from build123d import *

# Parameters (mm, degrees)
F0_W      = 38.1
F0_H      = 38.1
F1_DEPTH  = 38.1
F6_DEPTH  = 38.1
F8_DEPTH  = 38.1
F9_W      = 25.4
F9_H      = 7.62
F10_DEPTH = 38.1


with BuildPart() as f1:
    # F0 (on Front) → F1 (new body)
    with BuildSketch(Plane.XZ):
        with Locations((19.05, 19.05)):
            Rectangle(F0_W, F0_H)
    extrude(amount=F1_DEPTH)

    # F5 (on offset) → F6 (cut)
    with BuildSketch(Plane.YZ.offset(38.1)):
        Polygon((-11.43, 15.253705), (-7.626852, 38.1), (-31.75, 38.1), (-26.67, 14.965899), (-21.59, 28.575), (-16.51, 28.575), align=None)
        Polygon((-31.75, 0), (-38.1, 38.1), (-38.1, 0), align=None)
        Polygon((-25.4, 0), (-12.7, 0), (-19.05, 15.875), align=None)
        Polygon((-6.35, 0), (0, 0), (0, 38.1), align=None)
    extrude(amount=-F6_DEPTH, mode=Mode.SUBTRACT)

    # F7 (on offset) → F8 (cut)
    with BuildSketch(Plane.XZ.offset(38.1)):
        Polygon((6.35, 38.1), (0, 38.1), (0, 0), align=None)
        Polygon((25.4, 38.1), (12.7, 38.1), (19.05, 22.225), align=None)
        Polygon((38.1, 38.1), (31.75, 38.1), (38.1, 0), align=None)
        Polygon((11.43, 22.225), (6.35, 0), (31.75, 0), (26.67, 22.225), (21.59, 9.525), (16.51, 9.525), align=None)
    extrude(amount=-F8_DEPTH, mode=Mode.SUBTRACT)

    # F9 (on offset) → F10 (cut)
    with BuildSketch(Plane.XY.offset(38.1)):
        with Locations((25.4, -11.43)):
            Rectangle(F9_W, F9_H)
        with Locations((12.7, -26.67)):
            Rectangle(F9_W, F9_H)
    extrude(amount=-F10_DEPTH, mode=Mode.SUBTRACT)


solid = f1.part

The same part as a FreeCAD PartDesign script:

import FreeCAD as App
import Part
import Sketcher
from FreeCAD import Vector
Q = App.Units.Quantity

doc = App.newDocument("Part")
body = doc.addObject("PartDesign::Body", "Body")

# Sketch on XZ plane
sketch1 = doc.addObject("Sketcher::SketchObject", "Sketch")
body.addObject(sketch1)
sketch1.AttachmentSupport = (doc.XZ_Plane, [""])
sketch1.MapMode = "FlatFace"
sketch1.addGeometry(Part.LineSegment(Vector(0, 38, 0), Vector(0, 0, 0)), False)
sketch1.addGeometry(Part.LineSegment(Vector(0, 0, 0), Vector(38, 0, 0)), False)
sketch1.addGeometry(Part.LineSegment(Vector(38, 0, 0), Vector(38, 38, 0)), False)
sketch1.addGeometry(Part.LineSegment(Vector(38, 38, 0), Vector(0, 38, 0)), False)
sketch1.addConstraint(Sketcher.Constraint("Coincident", 0, 2, 1, 1))
sketch1.addConstraint(Sketcher.Constraint("Coincident", 1, 2, 2, 1))
sketch1.addConstraint(Sketcher.Constraint("Coincident", 2, 2, 3, 1))
sketch1.addConstraint(Sketcher.Constraint("Coincident", 3, 2, 0, 1))
sketch1.addConstraint(Sketcher.Constraint("Vertical", 0))
sketch1.addConstraint(Sketcher.Constraint("Horizontal", 1))
sketch1.addConstraint(Sketcher.Constraint("Vertical", 2))
sketch1.addConstraint(Sketcher.Constraint("Horizontal", 3))
sketch1.addConstraint(Sketcher.Constraint("Coincident", 0, 2, -1, 1))
sketch1.addConstraint(Sketcher.Constraint("Equal", 3, 0))
sketch1.addConstraint(Sketcher.Constraint("DistanceX", 1, 1, 1, 2, Q("1.5 in")))
pad1 = doc.addObject("PartDesign::Pad", "Pad")
body.addObject(pad1)
pad1.Profile = sketch1
pad1.Length = Q("1.5 in")

# Sketch on YZ plane
sketch2 = doc.addObject("Sketcher::SketchObject", "Sketch001")
body.addObject(sketch2)
sketch2.AttachmentSupport = (doc.YZ_Plane, [""])
sketch2.MapMode = "FlatFace"
sketch2.AttachmentOffset = App.Placement(Vector(0, 0, 1.5 * 25.4), App.Rotation())
sketch2.addGeometry(Part.LineSegment(Vector(-11, 15, 0), Vector(-8, 38, 0)), False)
sketch2.addGeometry(Part.LineSegment(Vector(-8, 38, 0), Vector(-32, 38, 0)), False)
sketch2.addGeometry(Part.LineSegment(Vector(-32, 38, 0), Vector(-27, 15, 0)), False)
sketch2.addGeometry(Part.LineSegment(Vector(-27, 15, 0), Vector(-22, 29, 0)), False)
sketch2.addGeometry(Part.LineSegment(Vector(-22, 29, 0), Vector(-17, 29, 0)), False)
sketch2.addGeometry(Part.LineSegment(Vector(-17, 29, 0), Vector(-11, 15, 0)), False)
sketch2.addGeometry(Part.LineSegment(Vector(-32, 0, 0), Vector(-38, 38, 0)), False)
sketch2.addGeometry(Part.LineSegment(Vector(-38, 38, 0), Vector(-38, 0, 0)), False)
sketch2.addGeometry(Part.LineSegment(Vector(-38, 0, 0), Vector(-32, 0, 0)), False)
sketch2.addGeometry(Part.LineSegment(Vector(-25, 0, 0), Vector(-13, 0, 0)), False)
sketch2.addGeometry(Part.LineSegment(Vector(-13, 0, 0), Vector(-19, 16, 0)), False)
sketch2.addGeometry(Part.LineSegment(Vector(-19, 16, 0), Vector(-25, 0, 0)), False)
sketch2.addGeometry(Part.LineSegment(Vector(-6, 0, 0), Vector(0, 0, 0)), False)
sketch2.addGeometry(Part.LineSegment(Vector(0, 0, 0), Vector(0, 38, 0)), False)
sketch2.addGeometry(Part.LineSegment(Vector(0, 38, 0), Vector(-6, 0, 0)), False)
sketch2.addConstraint(Sketcher.Constraint("Coincident", 0, 2, 1, 1))
sketch2.addConstraint(Sketcher.Constraint("Coincident", 1, 2, 2, 1))
sketch2.addConstraint(Sketcher.Constraint("Coincident", 2, 2, 3, 1))
sketch2.addConstraint(Sketcher.Constraint("Coincident", 3, 2, 4, 1))
sketch2.addConstraint(Sketcher.Constraint("Coincident", 4, 2, 5, 1))
sketch2.addConstraint(Sketcher.Constraint("Coincident", 5, 2, 0, 1))
sketch2.addConstraint(Sketcher.Constraint("Coincident", 6, 2, 7, 1))
sketch2.addConstraint(Sketcher.Constraint("Coincident", 7, 2, 8, 1))
sketch2.addConstraint(Sketcher.Constraint("Coincident", 8, 2, 6, 1))
sketch2.addConstraint(Sketcher.Constraint("Coincident", 9, 2, 10, 1))
sketch2.addConstraint(Sketcher.Constraint("Coincident", 10, 2, 11, 1))
sketch2.addConstraint(Sketcher.Constraint("Coincident", 11, 2, 9, 1))
sketch2.addConstraint(Sketcher.Constraint("Coincident", 12, 2, 13, 1))
sketch2.addConstraint(Sketcher.Constraint("Coincident", 13, 2, 14, 1))
sketch2.addConstraint(Sketcher.Constraint("Coincident", 14, 2, 12, 1))
sketch2.addConstraint(Sketcher.Constraint("Horizontal", 1))
sketch2.addConstraint(Sketcher.Constraint("Horizontal", 4))
sketch2.addConstraint(Sketcher.Constraint("Vertical", 7))
sketch2.addConstraint(Sketcher.Constraint("Horizontal", 8))
sketch2.addConstraint(Sketcher.Constraint("Horizontal", 9))
sketch2.addConstraint(Sketcher.Constraint("Horizontal", 12))
sketch2.addConstraint(Sketcher.Constraint("Vertical", 13))
sketch2.addConstraint(Sketcher.Constraint("Coincident", 12, 2, -1, 1))
sketch2.addConstraint(Sketcher.Constraint("PointOnObject", 7, 2, -1))
sketch2.addConstraint(Sketcher.Constraint("PointOnObject", 9, 2, -1))
sketch2.addConstraint(Sketcher.Constraint("Horizontal", 1, 2, 6, 2))
sketch2.addConstraint(Sketcher.Constraint("Horizontal", 6, 2, 13, 2))
sketch2.addConstraint(Sketcher.Constraint("Vertical", 1, 2, 8, 2))
sketch2.addConstraint(Sketcher.Constraint("Equal", 8, 12))
sketch2.addConstraint(Sketcher.Constraint("Equal", 10, 11))
sketch2.addConstraint(Sketcher.Constraint("DistanceX", 4, 1, 4, 2, Q("0.2 in")))
sketch2.addConstraint(Sketcher.Constraint("DistanceX", 9, 1, 9, 2, Q("0.5 in")))
sketch2.addConstraint(Sketcher.Constraint("DistanceY", 7, 2, 7, 1, Q("1.5 in")))
sketch2.addConstraint(Sketcher.Constraint("DistanceX", 11, 2, -1, 1, Q("1 in")))
sketch2.addConstraint(Sketcher.Constraint("DistanceX", 7, 2, 9, 2, Q("1 in")))
sketch2.addConstraint(Sketcher.Constraint("DistanceX", 8, 1, 8, 2, Q("0.25 in")))
sketch2.addConstraint(Sketcher.Constraint("DistanceX", 1, 2, 2, 2, Q("0.2 in")))
sketch2.addConstraint(Sketcher.Constraint("DistanceX", 1, 2, 3, 2, Q("0.4 in")))
sketch2.addConstraint(Sketcher.Constraint("DistanceX", 4, 2, 5, 2, Q("0.2 in")))
sketch2.addConstraint(Sketcher.Constraint("DistanceY", 10, 2, 3, 2, Q("0.5 in")))
sketch2.addConstraint(Sketcher.Constraint("DistanceY", -1, 1, 3, 2, Q("1.125 in")))
sketch2.addConstraint(Sketcher.Constraint("DistanceX", 1, 2, 1, 1, Q("24.123148 mm")))
sketch2.addConstraint(Sketcher.Constraint("DistanceY", -1, 1, 2, 2, Q("14.965899 mm")))
sketch2.addConstraint(Sketcher.Constraint("Distance", 0, Q("23.160681 mm")))
pocket1 = doc.addObject("PartDesign::Pocket", "Pocket")
body.addObject(pocket1)
pocket1.Profile = sketch2
pocket1.Length = Q("1.5 in")

# Sketch on XZ plane
sketch3 = doc.addObject("Sketcher::SketchObject", "Sketch002")
body.addObject(sketch3)
sketch3.AttachmentSupport = (doc.XZ_Plane, [""])
sketch3.MapMode = "FlatFace"
sketch3.AttachmentOffset = App.Placement(Vector(0, 0, 1.5 * 25.4), App.Rotation())
sketch3.addGeometry(Part.LineSegment(Vector(6, 38, 0), Vector(0, 38, 0)), False)
sketch3.addGeometry(Part.LineSegment(Vector(0, 38, 0), Vector(0, 0, 0)), False)
sketch3.addGeometry(Part.LineSegment(Vector(0, 0, 0), Vector(6, 38, 0)), False)
sketch3.addGeometry(Part.LineSegment(Vector(25, 38, 0), Vector(13, 38, 0)), False)
sketch3.addGeometry(Part.LineSegment(Vector(13, 38, 0), Vector(19, 22, 0)), False)
sketch3.addGeometry(Part.LineSegment(Vector(19, 22, 0), Vector(25, 38, 0)), False)
sketch3.addGeometry(Part.LineSegment(Vector(38, 38, 0), Vector(32, 38, 0)), False)
sketch3.addGeometry(Part.LineSegment(Vector(32, 38, 0), Vector(38, 0, 0)), False)
sketch3.addGeometry(Part.LineSegment(Vector(38, 0, 0), Vector(38, 38, 0)), False)
sketch3.addGeometry(Part.LineSegment(Vector(11, 22, 0), Vector(6, 0, 0)), False)
sketch3.addGeometry(Part.LineSegment(Vector(6, 0, 0), Vector(32, 0, 0)), False)
sketch3.addGeometry(Part.LineSegment(Vector(32, 0, 0), Vector(27, 22, 0)), False)
sketch3.addGeometry(Part.LineSegment(Vector(27, 22, 0), Vector(22, 10, 0)), False)
sketch3.addGeometry(Part.LineSegment(Vector(22, 10, 0), Vector(17, 10, 0)), False)
sketch3.addGeometry(Part.LineSegment(Vector(17, 10, 0), Vector(11, 22, 0)), False)
sketch3.addConstraint(Sketcher.Constraint("Coincident", 0, 2, 1, 1))
sketch3.addConstraint(Sketcher.Constraint("Coincident", 1, 2, 2, 1))
sketch3.addConstraint(Sketcher.Constraint("Coincident", 2, 2, 0, 1))
sketch3.addConstraint(Sketcher.Constraint("Coincident", 3, 2, 4, 1))
sketch3.addConstraint(Sketcher.Constraint("Coincident", 4, 2, 5, 1))
sketch3.addConstraint(Sketcher.Constraint("Coincident", 5, 2, 3, 1))
sketch3.addConstraint(Sketcher.Constraint("Coincident", 6, 2, 7, 1))
sketch3.addConstraint(Sketcher.Constraint("Coincident", 7, 2, 8, 1))
sketch3.addConstraint(Sketcher.Constraint("Coincident", 8, 2, 6, 1))
sketch3.addConstraint(Sketcher.Constraint("Coincident", 9, 2, 10, 1))
sketch3.addConstraint(Sketcher.Constraint("Coincident", 10, 2, 11, 1))
sketch3.addConstraint(Sketcher.Constraint("Coincident", 11, 2, 12, 1))
sketch3.addConstraint(Sketcher.Constraint("Coincident", 12, 2, 13, 1))
sketch3.addConstraint(Sketcher.Constraint("Coincident", 13, 2, 14, 1))
sketch3.addConstraint(Sketcher.Constraint("Coincident", 14, 2, 9, 1))
sketch3.addConstraint(Sketcher.Constraint("Horizontal", 0))
sketch3.addConstraint(Sketcher.Constraint("Vertical", 1))
sketch3.addConstraint(Sketcher.Constraint("Horizontal", 3))
sketch3.addConstraint(Sketcher.Constraint("Horizontal", 6))
sketch3.addConstraint(Sketcher.Constraint("Vertical", 8))
sketch3.addConstraint(Sketcher.Constraint("Horizontal", 10))
sketch3.addConstraint(Sketcher.Constraint("Horizontal", 13))
sketch3.addConstraint(Sketcher.Constraint("Coincident", 1, 2, -1, 1))
sketch3.addConstraint(Sketcher.Constraint("PointOnObject", 7, 2, -1))
sketch3.addConstraint(Sketcher.Constraint("PointOnObject", 9, 2, -1))
sketch3.addConstraint(Sketcher.Constraint("Parallel", 5, 12))
sketch3.addConstraint(Sketcher.Constraint("Parallel", 4, 14))
sketch3.addConstraint(Sketcher.Constraint("Horizontal", 2, 2, 3, 2))
sketch3.addConstraint(Sketcher.Constraint("Horizontal", 5, 2, 6, 2))
sketch3.addConstraint(Sketcher.Constraint("Horizontal", 4, 2, 11, 2))
sketch3.addConstraint(Sketcher.Constraint("Horizontal", 11, 2, 14, 2))
sketch3.addConstraint(Sketcher.Constraint("Vertical", 2, 2, 9, 2))
sketch3.addConstraint(Sketcher.Constraint("Vertical", 6, 2, 10, 2))
sketch3.addConstraint(Sketcher.Constraint("Equal", 0, 6))
sketch3.addConstraint(Sketcher.Constraint("Equal", 4, 5))
sketch3.addConstraint(Sketcher.Constraint("Equal", 9, 11))
sketch3.addConstraint(Sketcher.Constraint("DistanceX", 10, 1, 10, 2, Q("1 in")))
sketch3.addConstraint(Sketcher.Constraint("DistanceX", 3, 2, 3, 1, Q("0.5 in")))
sketch3.addConstraint(Sketcher.Constraint("DistanceX", 13, 2, 13, 1, Q("0.2 in")))
sketch3.addConstraint(Sketcher.Constraint("DistanceY", 1, 2, 1, 1, Q("1.5 in")))
sketch3.addConstraint(Sketcher.Constraint("DistanceX", -1, 1, 5, 2, Q("1 in")))
sketch3.addConstraint(Sketcher.Constraint("DistanceX", 3, 2, 7, 2, Q("1 in")))
sketch3.addConstraint(Sketcher.Constraint("DistanceX", 4, 2, 11, 2, Q("0.3 in")))
sketch3.addConstraint(Sketcher.Constraint("DistanceY", 12, 2, 4, 2, Q("0.5 in")))
pocket2 = doc.addObject("PartDesign::Pocket", "Pocket001")
body.addObject(pocket2)
pocket2.Profile = sketch3
pocket2.Length = Q("1.5 in")

# Sketch on XY plane
sketch4 = doc.addObject("Sketcher::SketchObject", "Sketch003")
body.addObject(sketch4)
sketch4.AttachmentSupport = (doc.XY_Plane, [""])
sketch4.MapMode = "FlatFace"
sketch4.AttachmentOffset = App.Placement(Vector(0, 0, 1.5 * 25.4), App.Rotation())
sketch4.addGeometry(Part.LineSegment(Vector(13, -8, 0), Vector(13, -15, 0)), False)
sketch4.addGeometry(Part.LineSegment(Vector(13, -15, 0), Vector(38, -15, 0)), False)
sketch4.addGeometry(Part.LineSegment(Vector(38, -15, 0), Vector(38, -8, 0)), False)
sketch4.addGeometry(Part.LineSegment(Vector(38, -8, 0), Vector(13, -8, 0)), False)
sketch4.addGeometry(Part.LineSegment(Vector(0, -23, 0), Vector(0, -30, 0)), False)
sketch4.addGeometry(Part.LineSegment(Vector(0, -30, 0), Vector(25, -30, 0)), False)
sketch4.addGeometry(Part.LineSegment(Vector(25, -30, 0), Vector(25, -23, 0)), False)
sketch4.addGeometry(Part.LineSegment(Vector(25, -23, 0), Vector(0, -23, 0)), False)
sketch4.addConstraint(Sketcher.Constraint("Coincident", 0, 2, 1, 1))
sketch4.addConstraint(Sketcher.Constraint("Coincident", 1, 2, 2, 1))
sketch4.addConstraint(Sketcher.Constraint("Coincident", 2, 2, 3, 1))
sketch4.addConstraint(Sketcher.Constraint("Coincident", 3, 2, 0, 1))
sketch4.addConstraint(Sketcher.Constraint("Coincident", 4, 2, 5, 1))
sketch4.addConstraint(Sketcher.Constraint("Coincident", 5, 2, 6, 1))
sketch4.addConstraint(Sketcher.Constraint("Coincident", 6, 2, 7, 1))
sketch4.addConstraint(Sketcher.Constraint("Coincident", 7, 2, 4, 1))
sketch4.addConstraint(Sketcher.Constraint("Vertical", 0))
sketch4.addConstraint(Sketcher.Constraint("Horizontal", 1))
sketch4.addConstraint(Sketcher.Constraint("Vertical", 2))
sketch4.addConstraint(Sketcher.Constraint("Horizontal", 3))
sketch4.addConstraint(Sketcher.Constraint("Vertical", 4))
sketch4.addConstraint(Sketcher.Constraint("Horizontal", 5))
sketch4.addConstraint(Sketcher.Constraint("Vertical", 6))
sketch4.addConstraint(Sketcher.Constraint("Horizontal", 7))
sketch4.addConstraint(Sketcher.Constraint("PointOnObject", 4, 2, -2))
sketch4.addConstraint(Sketcher.Constraint("Equal", 3, 5))
sketch4.addConstraint(Sketcher.Constraint("Equal", 2, 4))
sketch4.addConstraint(Sketcher.Constraint("DistanceX", 1, 1, 1, 2, Q("1 in")))
sketch4.addConstraint(Sketcher.Constraint("DistanceY", 0, 2, 0, 1, Q("0.3 in")))
sketch4.addConstraint(Sketcher.Constraint("DistanceX", -1, 1, 0, 2, Q("0.5 in")))
sketch4.addConstraint(Sketcher.Constraint("DistanceY", 0, 2, -1, 1, Q("0.6 in")))
sketch4.addConstraint(Sketcher.Constraint("DistanceY", 4, 2, -1, 1, Q("1.2 in")))
pocket3 = doc.addObject("PartDesign::Pocket", "Pocket002")
body.addObject(pocket3)
pocket3.Profile = sketch4
pocket3.Length = Q("1.5 in")

doc.recompute()
